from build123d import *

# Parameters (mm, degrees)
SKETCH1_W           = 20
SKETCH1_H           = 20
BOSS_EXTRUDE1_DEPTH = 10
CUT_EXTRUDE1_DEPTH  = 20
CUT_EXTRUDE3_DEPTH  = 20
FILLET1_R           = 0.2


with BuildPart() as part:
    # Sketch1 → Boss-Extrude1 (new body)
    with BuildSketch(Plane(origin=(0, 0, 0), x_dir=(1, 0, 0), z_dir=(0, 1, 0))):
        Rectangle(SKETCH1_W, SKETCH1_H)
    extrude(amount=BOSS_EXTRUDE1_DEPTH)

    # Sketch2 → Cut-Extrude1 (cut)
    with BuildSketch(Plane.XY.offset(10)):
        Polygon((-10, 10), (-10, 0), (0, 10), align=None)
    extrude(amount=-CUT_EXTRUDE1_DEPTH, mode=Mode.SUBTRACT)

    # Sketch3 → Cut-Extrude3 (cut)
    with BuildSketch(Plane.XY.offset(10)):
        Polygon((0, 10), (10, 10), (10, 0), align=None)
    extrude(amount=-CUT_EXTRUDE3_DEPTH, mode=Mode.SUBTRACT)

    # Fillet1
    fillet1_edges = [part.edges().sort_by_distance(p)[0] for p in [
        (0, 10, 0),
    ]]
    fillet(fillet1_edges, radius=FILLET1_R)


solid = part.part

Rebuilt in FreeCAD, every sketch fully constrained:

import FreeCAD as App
import Part
import Sketcher


def edges_at(feature, points):
    """Names of the edges that pass closest to the given points."""
    edges = feature.Shape.Edges
    near = lambda p: min(range(len(edges)), key=lambda i: edges[i].distToShape(Part.Vertex(*p))[0])
    return sorted({f"Edge{near(p) + 1}" for p in points})


def add_polygon(sketch, points):
    """Adds a closed chain of lines whose ends are joined by coincident constraints."""
    first, n = sketch.GeometryCount, len(points)
    for a, b in zip(points, points[1:] + points[:1]):
        sketch.addGeometry(Part.LineSegment(App.Vector(*a, 0), App.Vector(*b, 0)), False)
    for i in range(n):
        sketch.addConstraint(Sketcher.Constraint("Coincident", first + i, 2, first + (i + 1) % n, 1))

doc = App.newDocument("Part")
body = doc.addObject("PartDesign::Body", "Body")

sketch1 = body.newObject("Sketcher::SketchObject", "Sketch")
sketch1.AttachmentSupport = (doc.getObject("XZ_Plane"), [""])
sketch1.MapMode = "FlatFace"
add_polygon(sketch1, [(-10, -10), (-10, 10), (10, 10), (10, -10)])
sketch1.addConstraint([
    Sketcher.Constraint("Vertical", 0),
    Sketcher.Constraint("Horizontal", 1),
    Sketcher.Constraint("Vertical", 2),
    Sketcher.Constraint("Horizontal", 3),
    Sketcher.Constraint("Symmetric", 0, 2, 2, 2, -1, 1),
    Sketcher.Constraint("Equal", 3, 0),
    Sketcher.Constraint("DistanceX", 1, 1, 1, 2, 20.0),
])
pad1 = body.newObject("PartDesign::Pad", "Pad")
pad1.Profile = sketch1
pad1.Length = 10
pad1.Reversed = True

sketch2 = body.newObject("Sketcher::SketchObject", "Sketch001")
sketch2.AttachmentSupport = (doc.getObject("XY_Plane"), [""])
sketch2.MapMode = "FlatFace"
sketch2.AttachmentOffset = App.Placement(App.Vector(0, 0, 10), App.Rotation())
add_polygon(sketch2, [(-10, 10), (-10, 0), (0, 10)])
sketch2.addConstraint([
    Sketcher.Constraint("Vertical", 0),
    Sketcher.Constraint("Horizontal", 2),
    Sketcher.Constraint("PointOnObject", 0, 2, -1),
    Sketcher.Constraint("PointOnObject", 1, 2, -2),
    Sketcher.Constraint("Equal", 2, 0),
    Sketcher.Constraint("DistanceX", 2, 2, 2, 1, 10.0),
])
pocket1 = body.newObject("PartDesign::Pocket", "Pocket")
pocket1.Profile = sketch2
pocket1.Length = 20

sketch3 = body.newObject("Sketcher::SketchObject", "Sketch002")
sketch3.AttachmentSupport = (doc.getObject("XY_Plane"), [""])
sketch3.MapMode = "FlatFace"
sketch3.AttachmentOffset = App.Placement(App.Vector(0, 0, 10), App.Rotation())
add_polygon(sketch3, [(10, 10), (0, 10), (10, 0)])
sketch3.addConstraint([
    Sketcher.Constraint("Horizontal", 0),
    Sketcher.Constraint("Vertical", 2),
    Sketcher.Constraint("PointOnObject", 0, 2, -2),
    Sketcher.Constraint("PointOnObject", 1, 2, -1),
    Sketcher.Constraint("Equal", 0, 2),
    Sketcher.Constraint("DistanceX", 0, 2, 0, 1, 10.0),
])
pocket2 = body.newObject("PartDesign::Pocket", "Pocket001")
pocket2.Profile = sketch3
pocket2.Length = 20
doc.recompute()

fillet = body.newObject("PartDesign::Fillet", "Fillet")
fillet.Base = (pocket2, edges_at(pocket2, [(0, 10, 0)]))
fillet.Radius = 0.2

doc.recompute()
